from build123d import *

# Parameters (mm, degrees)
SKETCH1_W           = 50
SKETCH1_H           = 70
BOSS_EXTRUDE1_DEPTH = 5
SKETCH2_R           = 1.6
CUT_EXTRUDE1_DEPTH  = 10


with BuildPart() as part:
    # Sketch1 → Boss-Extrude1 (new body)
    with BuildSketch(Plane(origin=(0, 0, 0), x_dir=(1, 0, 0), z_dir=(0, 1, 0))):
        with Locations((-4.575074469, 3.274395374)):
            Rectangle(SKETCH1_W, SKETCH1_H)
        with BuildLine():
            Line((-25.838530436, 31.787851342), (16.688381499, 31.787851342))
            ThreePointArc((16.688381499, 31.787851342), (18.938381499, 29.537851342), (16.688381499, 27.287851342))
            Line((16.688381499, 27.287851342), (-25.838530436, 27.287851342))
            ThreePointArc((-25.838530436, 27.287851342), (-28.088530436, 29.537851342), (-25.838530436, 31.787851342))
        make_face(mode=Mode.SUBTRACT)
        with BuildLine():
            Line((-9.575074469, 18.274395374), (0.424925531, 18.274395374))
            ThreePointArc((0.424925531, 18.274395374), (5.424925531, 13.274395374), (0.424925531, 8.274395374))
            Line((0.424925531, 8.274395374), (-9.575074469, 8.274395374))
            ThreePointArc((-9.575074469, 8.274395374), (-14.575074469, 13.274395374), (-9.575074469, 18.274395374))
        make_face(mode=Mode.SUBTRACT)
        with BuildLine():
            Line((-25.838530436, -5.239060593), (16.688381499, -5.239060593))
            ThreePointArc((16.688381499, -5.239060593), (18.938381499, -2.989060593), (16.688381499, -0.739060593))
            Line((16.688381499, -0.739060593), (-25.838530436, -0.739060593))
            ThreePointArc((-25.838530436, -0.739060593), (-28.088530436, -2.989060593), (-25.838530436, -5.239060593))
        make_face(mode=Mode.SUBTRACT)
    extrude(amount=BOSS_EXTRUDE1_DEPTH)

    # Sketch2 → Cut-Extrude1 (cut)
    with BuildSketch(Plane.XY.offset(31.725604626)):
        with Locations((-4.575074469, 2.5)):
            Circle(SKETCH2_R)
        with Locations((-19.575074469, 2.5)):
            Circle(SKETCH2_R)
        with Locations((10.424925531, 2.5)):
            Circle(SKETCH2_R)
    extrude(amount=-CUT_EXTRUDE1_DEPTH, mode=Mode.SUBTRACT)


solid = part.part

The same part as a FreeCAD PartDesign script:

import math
import FreeCAD as App
import Part
import Sketcher
Q = App.Units.Quantity

doc = App.newDocument("Part")
params = doc.addObject("Spreadsheet::Sheet", "Params")
for row, (alias, value) in enumerate([
    ("sketch1_radius", "5 mm"),
    ("sketch1_width", "50 mm"),
    ("sketch1_width2", "10 mm"),
    ("sketch1_height", "70 mm"),
    ("sketch1_radius2", "2.25 mm"),
    ("pad1_length", "5 mm"),
    ("sketch2_diameter", "3.2 mm"),
    ("pocket1_length", "10 mm"),
], start=1):
    params.set(f"A{row}", alias)
    params.set(f"B{row}", "=" + value)
    params.setAlias(f"B{row}", alias)

body = doc.addObject("PartDesign::Body", "Body")

# Sketch on XZ plane
sketch1 = doc.addObject("Sketcher::SketchObject", "Sketch")
body.addObject(sketch1)
sketch1.AttachmentSupport = (doc.XZ_Plane, [""])
sketch1.MapMode = "FlatFace"
sketch1.addGeometry([
    Part.LineSegment(App.Vector(-29.6, -38.3, 0), App.Vector(-29.6, 31.7, 0)),  # 0
    Part.LineSegment(App.Vector(-29.6, 31.7, 0), App.Vector(20.4, 31.7, 0)),  # 1
    Part.LineSegment(App.Vector(20.4, 31.7, 0), App.Vector(20.4, -38.3, 0)),  # 2
    Part.LineSegment(App.Vector(20.4, -38.3, 0), App.Vector(-29.6, -38.3, 0)),  # 3
    Part.ArcOfCircle(Part.Circle(App.Vector(-9.6, -13.3, 0), App.Vector(0, 0, 1), 5), math.radians(90), math.radians(270)),  # 4
    Part.LineSegment(App.Vector(-9.6, -18.3, 0), App.Vector(0.4, -18.3, 0)),  # 5
    Part.ArcOfCircle(Part.Circle(App.Vector(0.4, -13.3, 0), App.Vector(0, 0, 1), 5), math.radians(-90), math.radians(90)),  # 6
    Part.LineSegment(App.Vector(0.4, -8.3, 0), App.Vector(-9.6, -8.3, 0)),  # 7
    Part.LineSegment(App.Vector(16.7, 5.2, 0), App.Vector(-25.8, 5.2, 0)),  # 8
    Part.ArcOfCircle(Part.Circle(App.Vector(-25.8, 3, 0), App.Vector(0, 0, 1), 2.2), math.radians(90), math.radians(270)),  # 9
    Part.LineSegment(App.Vector(-25.8, 0.7, 0), App.Vector(16.7, 0.7, 0)),  # 10
    Part.ArcOfCircle(Part.Circle(App.Vector(16.7, 3, 0), App.Vector(0, 0, 1), 2.2), math.radians(-90), math.radians(90)),  # 11
    Part.ArcOfCircle(Part.Circle(App.Vector(-25.8, -29.5, 0), App.Vector(0, 0, 1), 2.2), math.radians(90), math.radians(270)),  # 12
    Part.LineSegment(App.Vector(-25.8, -31.8, 0), App.Vector(16.7, -31.8, 0)),  # 13
    Part.ArcOfCircle(Part.Circle(App.Vector(16.7, -29.5, 0), App.Vector(0, 0, 1), 2.2), math.radians(-90), math.radians(90)),  # 14
    Part.LineSegment(App.Vector(16.7, -27.3, 0), App.Vector(-25.8, -27.3, 0)),  # 15
], False)
sketch1.addConstraint([
    Sketcher.Constraint("Coincident", 0, 2, 1, 1),
    Sketcher.Constraint("Coincident", 1, 2, 2, 1),
    Sketcher.Constraint("Coincident", 2, 2, 3, 1),
    Sketcher.Constraint("Coincident", 3, 2, 0, 1),
    Sketcher.Constraint("Tangent", 4, 2, 5, 1),
    Sketcher.Constraint("Tangent", 5, 2, 6, 1),
    Sketcher.Constraint("Tangent", 6, 2, 7, 1),
    Sketcher.Constraint("Tangent", 7, 2, 4, 1),
    Sketcher.Constraint("Tangent", 8, 2, 9, 1),
    Sketcher.Constraint("Tangent", 9, 2, 10, 1),
    Sketcher.Constraint("Tangent", 10, 2, 11, 1),
    Sketcher.Constraint("Tangent", 11, 2, 8, 1),
    Sketcher.Constraint("Tangent", 12, 2, 13, 1),
    Sketcher.Constraint("Tangent", 13, 2, 14, 1),
    Sketcher.Constraint("Tangent", 14, 2, 15, 1),
    Sketcher.Constraint("Tangent", 15, 2, 12, 1),
    Sketcher.Constraint("Vertical", 0),
    Sketcher.Constraint("Horizontal", 1),
    Sketcher.Constraint("Vertical", 2),
    Sketcher.Constraint("Horizontal", 3),
    Sketcher.Constraint("Horizontal", 5),
    Sketcher.Constraint("Horizontal", 7),
    Sketcher.Constraint("Horizontal", 8),
    Sketcher.Constraint("Horizontal", 10),
    Sketcher.Constraint("Horizontal", 13),
    Sketcher.Constraint("Horizontal", 15),
    Sketcher.Constraint("Equal", 11, 12),
    Sketcher.Constraint("Vertical", 9, 3, 12, 3),
    Sketcher.Constraint("Vertical", 11, 3, 14, 3),
    Sketcher.Constraint("Radius", 4, Q("5 mm")),
    Sketcher.Constraint("DistanceX", 1, 1, 1, 2, Q("50 mm")),
    Sketcher.Constraint("DistanceX", 5, 1, 5, 2, Q("10 mm")),
    Sketcher.Constraint("DistanceY", 0, 1, 0, 2, Q("70 mm")),
    Sketcher.Constraint("Radius", 9, Q("2.25 mm")),
    Sketcher.Constraint("DistanceX", 0, 2, 4, 3, Q("20 mm")),
    Sketcher.Constraint("DistanceY", 4, 3, 0, 2, Q("45 mm")),
    Sketcher.Constraint("DistanceX", 8, 2, 8, 1, Q("42.526912 mm")),
    Sketcher.Constraint("DistanceX", 9, 3, -1, 1, Q("25.83853 mm")),
    Sketcher.Constraint("DistanceY", -1, 1, 9, 3, Q("2.989061 mm")),
    Sketcher.Constraint("DistanceY", 12, 3, -1, 1, Q("29.537851 mm")),
    Sketcher.Constraint("DistanceX", 4, 3, -1, 1, Q("9.575074 mm")),
    Sketcher.Constraint("DistanceY", 4, 3, -1, 1, Q("13.274395 mm")),
])
sketch1.setExpression("Constraints[29]", "Params.sketch1_radius")
sketch1.setExpression("Constraints[30]", "Params.sketch1_width")
sketch1.setExpression("Constraints[31]", "Params.sketch1_width2")
sketch1.setExpression("Constraints[32]", "Params.sketch1_height")
sketch1.setExpression("Constraints[33]", "Params.sketch1_radius2")
pad1 = doc.addObject("PartDesign::Pad", "Pad")
body.addObject(pad1)
pad1.Profile = sketch1
pad1.setExpression("Length", "Params.pad1_length")
pad1.Reversed = True

# Sketch on XY plane
sketch2 = doc.addObject("Sketcher::SketchObject", "Sketch001")
body.addObject(sketch2)
sketch2.AttachmentSupport = (doc.XY_Plane, [""])
sketch2.MapMode = "FlatFace"
sketch2.AttachmentOffset = App.Placement(App.Vector(0, 0, 31.725605), App.Rotation())
sketch2.addGeometry([
    Part.Circle(App.Vector(-4.6, 2.5, 0), App.Vector(0, 0, 1), 1.6),
    Part.Circle(App.Vector(-19.6, 2.5, 0), App.Vector(0, 0, 1), 1.6),
    Part.Circle(App.Vector(10.4, 2.5, 0), App.Vector(0, 0, 1), 1.6),
], False)
sketch2.addConstraint([
    Sketcher.Constraint("Equal", 0, 1),
    Sketcher.Constraint("Equal", 1, 2),
    Sketcher.Constraint("Horizontal", 0, 3, 1, 3),
    Sketcher.Constraint("Horizontal", 1, 3, 2, 3),
    Sketcher.Constraint("Diameter", 0, Q("3.2 mm")),
    Sketcher.Constraint("DistanceX", 1, 3, 0, 3, Q("15 mm")),
    Sketcher.Constraint("DistanceX", 0, 3, 2, 3, Q("15 mm")),
    Sketcher.Constraint("DistanceY", -1, 1, 0, 3, Q("2.5 mm")),
    Sketcher.Constraint("DistanceX", 0, 3, -1, 1, Q("4.575074 mm")),
])
sketch2.setExpression("Constraints[4]", "Params.sketch2_diameter")
pocket1 = doc.addObject("PartDesign::Pocket", "Pocket")
body.addObject(pocket1)
pocket1.Profile = sketch2
pocket1.setExpression("Length", "Params.pocket1_length")

doc.recompute()
